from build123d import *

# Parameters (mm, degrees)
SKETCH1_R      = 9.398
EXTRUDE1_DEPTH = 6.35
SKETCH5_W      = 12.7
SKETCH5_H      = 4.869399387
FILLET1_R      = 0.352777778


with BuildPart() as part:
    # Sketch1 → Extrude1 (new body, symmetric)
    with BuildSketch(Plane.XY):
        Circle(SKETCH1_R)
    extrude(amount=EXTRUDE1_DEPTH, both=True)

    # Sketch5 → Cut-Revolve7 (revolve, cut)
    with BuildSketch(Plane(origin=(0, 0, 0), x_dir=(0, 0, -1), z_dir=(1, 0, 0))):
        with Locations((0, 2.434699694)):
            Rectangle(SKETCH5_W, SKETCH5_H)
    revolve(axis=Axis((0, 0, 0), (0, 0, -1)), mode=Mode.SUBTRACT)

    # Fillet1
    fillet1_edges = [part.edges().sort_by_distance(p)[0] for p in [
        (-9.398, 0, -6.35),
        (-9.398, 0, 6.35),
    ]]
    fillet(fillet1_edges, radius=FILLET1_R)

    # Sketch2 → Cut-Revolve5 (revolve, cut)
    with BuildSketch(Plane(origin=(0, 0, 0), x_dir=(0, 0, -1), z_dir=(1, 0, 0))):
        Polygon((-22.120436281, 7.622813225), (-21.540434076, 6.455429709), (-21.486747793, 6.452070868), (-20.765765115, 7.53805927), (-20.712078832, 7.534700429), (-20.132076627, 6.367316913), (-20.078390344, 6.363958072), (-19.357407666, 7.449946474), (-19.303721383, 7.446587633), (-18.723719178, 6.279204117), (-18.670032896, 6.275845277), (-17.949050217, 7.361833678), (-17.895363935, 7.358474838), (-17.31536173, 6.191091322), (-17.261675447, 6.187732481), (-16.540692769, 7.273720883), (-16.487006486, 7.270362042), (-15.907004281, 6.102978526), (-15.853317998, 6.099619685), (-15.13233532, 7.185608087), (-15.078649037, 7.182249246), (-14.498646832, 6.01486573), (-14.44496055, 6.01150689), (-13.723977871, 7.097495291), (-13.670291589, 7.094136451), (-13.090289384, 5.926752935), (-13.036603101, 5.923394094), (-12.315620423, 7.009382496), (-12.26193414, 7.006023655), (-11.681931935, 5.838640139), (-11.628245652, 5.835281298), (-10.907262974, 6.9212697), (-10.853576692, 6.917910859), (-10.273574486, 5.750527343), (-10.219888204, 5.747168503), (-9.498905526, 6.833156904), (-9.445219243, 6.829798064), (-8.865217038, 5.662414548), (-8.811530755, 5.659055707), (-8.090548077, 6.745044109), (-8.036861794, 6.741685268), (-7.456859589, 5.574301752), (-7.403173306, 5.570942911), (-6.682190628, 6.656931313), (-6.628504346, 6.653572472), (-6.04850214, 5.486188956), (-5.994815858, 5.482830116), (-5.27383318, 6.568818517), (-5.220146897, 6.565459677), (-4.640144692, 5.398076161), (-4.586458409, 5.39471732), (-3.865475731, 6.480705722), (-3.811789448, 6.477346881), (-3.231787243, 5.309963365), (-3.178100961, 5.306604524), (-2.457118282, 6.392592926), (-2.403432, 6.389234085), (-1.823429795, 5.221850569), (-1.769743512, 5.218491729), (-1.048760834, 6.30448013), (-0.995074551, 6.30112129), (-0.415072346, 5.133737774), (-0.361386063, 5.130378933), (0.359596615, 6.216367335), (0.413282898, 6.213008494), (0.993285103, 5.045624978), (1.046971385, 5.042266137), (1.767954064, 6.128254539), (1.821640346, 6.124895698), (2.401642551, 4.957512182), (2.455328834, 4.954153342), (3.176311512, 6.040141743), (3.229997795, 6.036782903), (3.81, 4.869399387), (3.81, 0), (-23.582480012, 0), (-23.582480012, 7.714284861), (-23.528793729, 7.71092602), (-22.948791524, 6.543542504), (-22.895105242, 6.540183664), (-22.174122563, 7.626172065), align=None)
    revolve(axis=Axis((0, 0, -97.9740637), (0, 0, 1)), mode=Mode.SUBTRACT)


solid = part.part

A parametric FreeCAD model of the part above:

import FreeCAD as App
import Part
import Sketcher
Q = App.Units.Quantity


def edges_at(feature, points):
    """Names of the edges that pass closest to the given points."""
    edges = feature.Shape.Edges
    near = lambda p: min(range(len(edges)), key=lambda i: edges[i].distToShape(Part.Vertex(*p))[0])
    return sorted({f"Edge{near(p) + 1}" for p in points})

doc = App.newDocument("Part")
params = doc.addObject("Spreadsheet::Sheet", "Params")
for row, (alias, value) in enumerate([
    ("sketch1_diameter", "0.74 in"),
    ("pad1_length", "0.5 in"),
    ("sketch2_height", "0.5 in"),
    ("groove_angle", "360 deg"),
    ("fillet_radius", "0.352778 mm"),
    ("groove2_angle", "360 deg"),
], start=1):
    params.set(f"A{row}", alias)
    params.set(f"B{row}", "=" + value)
    params.setAlias(f"B{row}", alias)

body = doc.addObject("PartDesign::Body", "Body")

# Sketch on XY plane
sketch1 = body.newObject("Sketcher::SketchObject", "Sketch")
sketch1.AttachmentSupport = (doc.getObject("XY_Plane"), [""])
sketch1.MapMode = "FlatFace"
sketch1.addGeometry(Part.Circle(App.Vector(0, 0, 0), App.Vector(0, 0, 1), 9), False)
sketch1.addConstraint(Sketcher.Constraint("Coincident", 0, 3, -1, 1))
sketch1.addConstraint(Sketcher.Constraint("Diameter", 0, Q("0.74 in")))
sketch1.setExpression("Constraints[1]", "Params.sketch1_diameter")
pad1 = body.newObject("PartDesign::Pad", "Pad")
pad1.Profile = sketch1
pad1.setExpression("Length", "Params.pad1_length")
pad1.Midplane = True

# Sketch on YZ plane
sketch2 = body.newObject("Sketcher::SketchObject", "Sketch001")
sketch2.AttachmentSupport = (doc.getObject("YZ_Plane"), [""])
sketch2.MapMode = "FlatFace"
sketch2.addGeometry(Part.LineSegment(App.Vector(4.9, 6.3, 0), App.Vector(0, 6.3, 0)), False)
sketch2.addGeometry(Part.LineSegment(App.Vector(0, 6.3, 0), App.Vector(0, -6.3, 0)), False)
sketch2.addGeometry(Part.LineSegment(App.Vector(0, -6.3, 0), App.Vector(4.9, -6.3, 0)), False)
sketch2.addGeometry(Part.LineSegment(App.Vector(4.9, -6.3, 0), App.Vector(4.9, 6.3, 0)), False)
sketch2.addConstraint(Sketcher.Constraint("Coincident", 0, 2, 1, 1))
sketch2.addConstraint(Sketcher.Constraint("Coincident", 1, 2, 2, 1))
sketch2.addConstraint(Sketcher.Constraint("Coincident", 2, 2, 3, 1))
sketch2.addConstraint(Sketcher.Constraint("Coincident", 3, 2, 0, 1))
sketch2.addConstraint(Sketcher.Constraint("Horizontal", 0))
sketch2.addConstraint(Sketcher.Constraint("Vertical", 1))
sketch2.addConstraint(Sketcher.Constraint("Horizontal", 2))
sketch2.addConstraint(Sketcher.Constraint("Vertical", 3))
sketch2.addConstraint(Sketcher.Constraint("Symmetric", 0, 2, 1, 2, -1, 1))
sketch2.addConstraint(Sketcher.Constraint("DistanceY", 1, 2, 1, 1, Q("0.5 in")))
sketch2.addConstraint(Sketcher.Constraint("DistanceX", 0, 2, 0, 1, Q("4.869399 mm")))
sketch2.setExpression("Constraints[9]", "Params.sketch2_height")
groove = body.newObject("PartDesign::Groove", "Groove")
groove.Profile = sketch2
groove.ReferenceAxis = (sketch2, ["V_Axis"])
groove.setExpression("Angle", "Params.groove_angle")
doc.recompute()

fillet = body.newObject("PartDesign::Fillet", "Fillet")
fillet.Base = (groove, edges_at(groove, [(-9.398, 0, -6.35), (-9.398, 0, 6.35)]))
fillet.setExpression("Radius", "Params.fillet_radius")

# Sketch on YZ plane
sketch3 = body.newObject("Sketcher::SketchObject", "Sketch002")
sketch3.AttachmentSupport = (doc.getObject("YZ_Plane"), [""])
sketch3.MapMode = "FlatFace"
sketch3.addGeometry(Part.LineSegment(App.Vector(6.46, 21.54, 0), App.Vector(7.62, 22.12, 0)), False)
sketch3.addGeometry(Part.LineSegment(App.Vector(7.62, 22.12, 0), App.Vector(7.63, 22.17, 0)), False)
sketch3.addGeometry(Part.LineSegment(App.Vector(7.63, 22.17, 0), App.Vector(6.54, 22.9, 0)), False)
sketch3.addGeometry(Part.LineSegment(App.Vector(6.54, 22.9, 0), App.Vector(6.54, 22.95, 0)), False)
sketch3.addGeometry(Part.LineSegment(App.Vector(6.54, 22.95, 0), App.Vector(7.71, 23.53, 0)), False)
sketch3.addGeometry(Part.LineSegment(App.Vector(7.71, 23.53, 0), App.Vector(7.71, 23.58, 0)), False)
sketch3.addGeometry(Part.LineSegment(App.Vector(7.71, 23.58, 0), App.Vector(0, 23.58, 0)), False)
sketch3.addGeometry(Part.LineSegment(App.Vector(0, 23.58, 0), App.Vector(0, -3.81, 0)), False)
sketch3.addGeometry(Part.LineSegment(App.Vector(0, -3.81, 0), App.Vector(4.87, -3.81, 0)), False)
sketch3.addGeometry(Part.LineSegment(App.Vector(4.87, -3.81, 0), App.Vector(6.04, -3.23, 0)), False)
sketch3.addGeometry(Part.LineSegment(App.Vector(6.04, -3.23, 0), App.Vector(6.04, -3.18, 0)), False)
sketch3.addGeometry(Part.LineSegment(App.Vector(6.04, -3.18, 0), App.Vector(4.95, -2.46, 0)), False)
sketch3.addGeometry(Part.LineSegment(App.Vector(4.95, -2.46, 0), App.Vector(4.96, -2.4, 0)), False)
sketch3.addGeometry(Part.LineSegment(App.Vector(4.96, -2.4, 0), App.Vector(6.12, -1.82, 0)), False)
sketch3.addGeometry(Part.LineSegment(App.Vector(6.12, -1.82, 0), App.Vector(6.13, -1.77, 0)), False)
sketch3.addGeometry(Part.LineSegment(App.Vector(6.13, -1.77, 0), App.Vector(5.04, -1.05, 0)), False)
sketch3.addGeometry(Part.LineSegment(App.Vector(5.04, -1.05, 0), App.Vector(5.05, -0.99, 0)), False)
sketch3.addGeometry(Part.LineSegment(App.Vector(5.05, -0.99, 0), App.Vector(6.21, -0.41, 0)), False)
sketch3.addGeometry(Part.LineSegment(App.Vector(6.21, -0.41, 0), App.Vector(6.22, -0.36, 0)), False)
sketch3.addGeometry(Part.LineSegment(App.Vector(6.22, -0.36, 0), App.Vector(5.13, 0.36, 0)), False)
sketch3.addGeometry(Part.LineSegment(App.Vector(5.13, 0.36, 0), App.Vector(5.13, 0.42, 0)), False)
sketch3.addGeometry(Part.LineSegment(App.Vector(5.13, 0.42, 0), App.Vector(6.3, 1, 0)), False)
sketch3.addGeometry(Part.LineSegment(App.Vector(6.3, 1, 0), App.Vector(6.3, 1.05, 0)), False)
sketch3.addGeometry(Part.LineSegment(App.Vector(6.3, 1.05, 0), App.Vector(5.22, 1.77, 0)), False)
sketch3.addGeometry(Part.LineSegment(App.Vector(5.22, 1.77, 0), App.Vector(5.22, 1.82, 0)), False)
sketch3.addGeometry(Part.LineSegment(App.Vector(5.22, 1.82, 0), App.Vector(6.39, 2.4, 0)), False)
sketch3.addGeometry(Part.LineSegment(App.Vector(6.39, 2.4, 0), App.Vector(6.39, 2.46, 0)), False)
sketch3.addGeometry(Part.LineSegment(App.Vector(6.39, 2.46, 0), App.Vector(5.31, 3.18, 0)), False)
sketch3.addGeometry(Part.LineSegment(App.Vector(5.31, 3.18, 0), App.Vector(5.31, 3.23, 0)), False)
sketch3.addGeometry(Part.LineSegment(App.Vector(5.31, 3.23, 0), App.Vector(6.48, 3.81, 0)), False)
sketch3.addGeometry(Part.LineSegment(App.Vector(6.48, 3.81, 0), App.Vector(6.48, 3.87, 0)), False)
sketch3.addGeometry(Part.LineSegment(App.Vector(6.48, 3.87, 0), App.Vector(5.39, 4.59, 0)), False)
sketch3.addGeometry(Part.LineSegment(App.Vector(5.39, 4.59, 0), App.Vector(5.4, 4.64, 0)), False)
sketch3.addGeometry(Part.LineSegment(App.Vector(5.4, 4.64, 0), App.Vector(6.57, 5.22, 0)), False)
sketch3.addGeometry(Part.LineSegment(App.Vector(6.57, 5.22, 0), App.Vector(6.57, 5.27, 0)), False)
sketch3.addGeometry(Part.LineSegment(App.Vector(6.57, 5.27, 0), App.Vector(5.48, 5.99, 0)), False)
sketch3.addGeometry(Part.LineSegment(App.Vector(5.48, 5.99, 0), App.Vector(5.49, 6.05, 0)), False)
sketch3.addGeometry(Part.LineSegment(App.Vector(5.49, 6.05, 0), App.Vector(6.65, 6.63, 0)), False)
sketch3.addGeometry(Part.LineSegment(App.Vector(6.65, 6.63, 0), App.Vector(6.66, 6.68, 0)), False)
sketch3.addGeometry(Part.LineSegment(App.Vector(6.66, 6.68, 0), App.Vector(5.57, 7.4, 0)), False)
sketch3.addGeometry(Part.LineSegment(App.Vector(5.57, 7.4, 0), App.Vector(5.57, 7.46, 0)), False)
sketch3.addGeometry(Part.LineSegment(App.Vector(5.57, 7.46, 0), App.Vector(6.74, 8.04, 0)), False)
sketch3.addGeometry(Part.LineSegment(App.Vector(6.74, 8.04, 0), App.Vector(6.75, 8.09, 0)), False)
sketch3.addGeometry(Part.LineSegment(App.Vector(6.75, 8.09, 0), App.Vector(5.66, 8.81, 0)), False)
sketch3.addGeometry(Part.LineSegment(App.Vector(5.66, 8.81, 0), App.Vector(5.66, 8.87, 0)), False)
sketch3.addGeometry(Part.LineSegment(App.Vector(5.66, 8.87, 0), App.Vector(6.83, 9.45, 0)), False)
sketch3.addGeometry(Part.LineSegment(App.Vector(6.83, 9.45, 0), App.Vector(6.83, 9.5, 0)), False)
sketch3.addGeometry(Part.LineSegment(App.Vector(6.83, 9.5, 0), App.Vector(5.75, 10.22, 0)), False)
sketch3.addGeometry(Part.LineSegment(App.Vector(5.75, 10.22, 0), App.Vector(5.75, 10.27, 0)), False)
sketch3.addGeometry(Part.LineSegment(App.Vector(5.75, 10.27, 0), App.Vector(6.92, 10.85, 0)), False)
sketch3.addGeometry(Part.LineSegment(App.Vector(6.92, 10.85, 0), App.Vector(6.92, 10.91, 0)), False)
sketch3.addGeometry(Part.LineSegment(App.Vector(6.92, 10.91, 0), App.Vector(5.84, 11.63, 0)), False)
sketch3.addGeometry(Part.LineSegment(App.Vector(5.84, 11.63, 0), App.Vector(5.84, 11.68, 0)), False)
sketch3.addGeometry(Part.LineSegment(App.Vector(5.84, 11.68, 0), App.Vector(7.01, 12.26, 0)), False)
sketch3.addGeometry(Part.LineSegment(App.Vector(7.01, 12.26, 0), App.Vector(7.01, 12.32, 0)), False)
sketch3.addGeometry(Part.LineSegment(App.Vector(7.01, 12.32, 0), App.Vector(5.92, 13.04, 0)), False)
sketch3.addGeometry(Part.LineSegment(App.Vector(5.92, 13.04, 0), App.Vector(5.93, 13.09, 0)), False)
sketch3.addGeometry(Part.LineSegment(App.Vector(5.93, 13.09, 0), App.Vector(7.09, 13.67, 0)), False)
sketch3.addGeometry(Part.LineSegment(App.Vector(7.09, 13.67, 0), App.Vector(7.1, 13.72, 0)), False)
sketch3.addGeometry(Part.LineSegment(App.Vector(7.1, 13.72, 0), App.Vector(6.01, 14.44, 0)), False)
sketch3.addGeometry(Part.LineSegment(App.Vector(6.01, 14.44, 0), App.Vector(6.01, 14.5, 0)), False)
sketch3.addGeometry(Part.LineSegment(App.Vector(6.01, 14.5, 0), App.Vector(7.18, 15.08, 0)), False)
sketch3.addGeometry(Part.LineSegment(App.Vector(7.18, 15.08, 0), App.Vector(7.19, 15.13, 0)), False)
sketch3.addGeometry(Part.LineSegment(App.Vector(7.19, 15.13, 0), App.Vector(6.1, 15.85, 0)), False)
sketch3.addGeometry(Part.LineSegment(App.Vector(6.1, 15.85, 0), App.Vector(6.1, 15.91, 0)), False)
sketch3.addGeometry(Part.LineSegment(App.Vector(6.1, 15.91, 0), App.Vector(7.27, 16.49, 0)), False)
sketch3.addGeometry(Part.LineSegment(App.Vector(7.27, 16.49, 0), App.Vector(7.27, 16.54, 0)), False)
sketch3.addGeometry(Part.LineSegment(App.Vector(7.27, 16.54, 0), App.Vector(6.19, 17.26, 0)), False)
sketch3.addGeometry(Part.LineSegment(App.Vector(6.19, 17.26, 0), App.Vector(6.19, 17.32, 0)), False)
sketch3.addGeometry(Part.LineSegment(App.Vector(6.19, 17.32, 0), App.Vector(7.36, 17.9, 0)), False)
sketch3.addGeometry(Part.LineSegment(App.Vector(7.36, 17.9, 0), App.Vector(7.36, 17.95, 0)), False)
sketch3.addGeometry(Part.LineSegment(App.Vector(7.36, 17.95, 0), App.Vector(6.28, 18.67, 0)), False)
sketch3.addGeometry(Part.LineSegment(App.Vector(6.28, 18.67, 0), App.Vector(6.28, 18.72, 0)), False)
sketch3.addGeometry(Part.LineSegment(App.Vector(6.28, 18.72, 0), App.Vector(7.45, 19.3, 0)), False)
sketch3.addGeometry(Part.LineSegment(App.Vector(7.45, 19.3, 0), App.Vector(7.45, 19.36, 0)), False)
sketch3.addGeometry(Part.LineSegment(App.Vector(7.45, 19.36, 0), App.Vector(6.36, 20.08, 0)), False)
sketch3.addGeometry(Part.LineSegment(App.Vector(6.36, 20.08, 0), App.Vector(6.37, 20.13, 0)), False)
sketch3.addGeometry(Part.LineSegment(App.Vector(6.37, 20.13, 0), App.Vector(7.53, 20.71, 0)), False)
sketch3.addGeometry(Part.LineSegment(App.Vector(7.53, 20.71, 0), App.Vector(7.54, 20.77, 0)), False)
sketch3.addGeometry(Part.LineSegment(App.Vector(7.54, 20.77, 0), App.Vector(6.45, 21.49, 0)), False)
sketch3.addGeometry(Part.LineSegment(App.Vector(6.45, 21.49, 0), App.Vector(6.46, 21.54, 0)), False)
sketch3.addConstraint(Sketcher.Constraint("Coincident", 0, 2, 1, 1))
sketch3.addConstraint(Sketcher.Constraint("Coincident", 1, 2, 2, 1))
sketch3.addConstraint(Sketcher.Constraint("Coincident", 2, 2, 3, 1))
sketch3.addConstraint(Sketcher.Constraint("Coincident", 3, 2, 4, 1))
sketch3.addConstraint(Sketcher.Constraint("Coincident", 4, 2, 5, 1))
sketch3.addConstraint(Sketcher.Constraint("Coincident", 5, 2, 6, 1))
sketch3.addConstraint(Sketcher.Constraint("Coincident", 6, 2, 7, 1))
sketch3.addConstraint(Sketcher.Constraint("Coincident", 7, 2, 8, 1))
sketch3.addConstraint(Sketcher.Constraint("Coincident", 8, 2, 9, 1))
sketch3.addConstraint(Sketcher.Constraint("Coincident", 9, 2, 10, 1))
sketch3.addConstraint(Sketcher.Constraint("Coincident", 10, 2, 11, 1))
sketch3.addConstraint(Sketcher.Constraint("Coincident", 11, 2, 12, 1))
sketch3.addConstraint(Sketcher.Constraint("Coincident", 12, 2, 13, 1))
sketch3.addConstraint(Sketcher.Constraint("Coincident", 13, 2, 14, 1))
sketch3.addConstraint(Sketcher.Constraint("Coincident", 14, 2, 15, 1))
sketch3.addConstraint(Sketcher.Constraint("Coincident", 15, 2, 16, 1))
sketch3.addConstraint(Sketcher.Constraint("Coincident", 16, 2, 17, 1))
sketch3.addConstraint(Sketcher.Constraint("Coincident", 17, 2, 18, 1))
sketch3.addConstraint(Sketcher.Constraint("Coincident", 18, 2, 19, 1))
sketch3.addConstraint(Sketcher.Constraint("Coincident", 19, 2, 20, 1))
sketch3.addConstraint(Sketcher.Constraint("Coincident", 20, 2, 21, 1))
sketch3.addConstraint(Sketcher.Constraint("Coincident", 21, 2, 22, 1))
sketch3.addConstraint(Sketcher.Constraint("Coincident", 22, 2, 23, 1))
sketch3.addConstraint(Sketcher.Constraint("Coincident", 23, 2, 24, 1))
sketch3.addConstraint(Sketcher.Constraint("Coincident", 24, 2, 25, 1))
sketch3.addConstraint(Sketcher.Constraint("Coincident", 25, 2, 26, 1))
sketch3.addConstraint(Sketcher.Constraint("Coincident", 26, 2, 27, 1))
sketch3.addConstraint(Sketcher.Constraint("Coincident", 27, 2, 28, 1))
sketch3.addConstraint(Sketcher.Constraint("Coincident", 28, 2, 29, 1))
sketch3.addConstraint(Sketcher.Constraint("Coincident", 29, 2, 30, 1))
sketch3.addConstraint(Sketcher.Constraint("Coincident", 30, 2, 31, 1))
sketch3.addConstraint(Sketcher.Constraint("Coincident", 31, 2, 32, 1))
sketch3.addConstraint(Sketcher.Constraint("Coincident", 32, 2, 33, 1))
sketch3.addConstraint(Sketcher.Constraint("Coincident", 33, 2, 34, 1))
sketch3.addConstraint(Sketcher.Constraint("Coincident", 34, 2, 35, 1))
sketch3.addConstraint(Sketcher.Constraint("Coincident", 35, 2, 36, 1))
sketch3.addConstraint(Sketcher.Constraint("Coincident", 36, 2, 37, 1))
sketch3.addConstraint(Sketcher.Constraint("Coincident", 37, 2, 38, 1))
sketch3.addConstraint(Sketcher.Constraint("Coincident", 38, 2, 39, 1))
sketch3.addConstraint(Sketcher.Constraint("Coincident", 39, 2, 40, 1))
sketch3.addConstraint(Sketcher.Constraint("Coincident", 40, 2, 41, 1))
sketch3.addConstraint(Sketcher.Constraint("Coincident", 41, 2, 42, 1))
sketch3.addConstraint(Sketcher.Constraint("Coincident", 42, 2, 43, 1))
sketch3.addConstraint(Sketcher.Constraint("Coincident", 43, 2, 44, 1))
sketch3.addConstraint(Sketcher.Constraint("Coincident", 44, 2, 45, 1))
sketch3.addConstraint(Sketcher.Constraint("Coincident", 45, 2, 46, 1))
sketch3.addConstraint(Sketcher.Constraint("Coincident", 46, 2, 47, 1))
sketch3.addConstraint(Sketcher.Constraint("Coincident", 47, 2, 48, 1))
sketch3.addConstraint(Sketcher.Constraint("Coincident", 48, 2, 49, 1))
sketch3.addConstraint(Sketcher.Constraint("Coincident", 49, 2, 50, 1))
sketch3.addConstraint(Sketcher.Constraint("Coincident", 50, 2, 51, 1))
sketch3.addConstraint(Sketcher.Constraint("Coincident", 51, 2, 52, 1))
sketch3.addConstraint(Sketcher.Constraint("Coincident", 52, 2, 53, 1))
sketch3.addConstraint(Sketcher.Constraint("Coincident", 53, 2, 54, 1))
sketch3.addConstraint(Sketcher.Constraint("Coincident", 54, 2, 55, 1))
sketch3.addConstraint(Sketcher.Constraint("Coincident", 55, 2, 56, 1))
sketch3.addConstraint(Sketcher.Constraint("Coincident", 56, 2, 57, 1))
sketch3.addConstraint(Sketcher.Constraint("Coincident", 57, 2, 58, 1))
sketch3.addConstraint(Sketcher.Constraint("Coincident", 58, 2, 59, 1))
sketch3.addConstraint(Sketcher.Constraint("Coincident", 59, 2, 60, 1))
sketch3.addConstraint(Sketcher.Constraint("Coincident", 60, 2, 61, 1))
sketch3.addConstraint(Sketcher.Constraint("Coincident", 61, 2, 62, 1))
sketch3.addConstraint(Sketcher.Constraint("Coincident", 62, 2, 63, 1))
sketch3.addConstraint(Sketcher.Constraint("Coincident", 63, 2, 64, 1))
sketch3.addConstraint(Sketcher.Constraint("Coincident", 64, 2, 65, 1))
sketch3.addConstraint(Sketcher.Constraint("Coincident", 65, 2, 66, 1))
sketch3.addConstraint(Sketcher.Constraint("Coincident", 66, 2, 67, 1))
sketch3.addConstraint(Sketcher.Constraint("Coincident", 67, 2, 68, 1))
sketch3.addConstraint(Sketcher.Constraint("Coincident", 68, 2, 69, 1))
sketch3.addConstraint(Sketcher.Constraint("Coincident", 69, 2, 70, 1))
sketch3.addConstraint(Sketcher.Constraint("Coincident", 70, 2, 71, 1))
sketch3.addConstraint(Sketcher.Constraint("Coincident", 71, 2, 72, 1))
sketch3.addConstraint(Sketcher.Constraint("Coincident", 72, 2, 73, 1))
sketch3.addConstraint(Sketcher.Constraint("Coincident", 73, 2, 74, 1))
sketch3.addConstraint(Sketcher.Constraint("Coincident", 74, 2, 75, 1))
sketch3.addConstraint(Sketcher.Constraint("Coincident", 75, 2, 76, 1))
sketch3.addConstraint(Sketcher.Constraint("Coincident", 76, 2, 77, 1))
sketch3.addConstraint(Sketcher.Constraint("Coincident", 77, 2, 78, 1))
sketch3.addConstraint(Sketcher.Constraint("Coincident", 78, 2, 79, 1))
sketch3.addConstraint(Sketcher.Constraint("Coincident", 79, 2, 80, 1))
sketch3.addConstraint(Sketcher.Constraint("Coincident", 80, 2, 0, 1))
sketch3.addConstraint(Sketcher.Constraint("Horizontal", 6))
sketch3.addConstraint(Sketcher.Constraint("Vertical", 7))
sketch3.addConstraint(Sketcher.Constraint("Horizontal", 8))
sketch3.addConstraint(Sketcher.Constraint("PointOnObject", 6, 2, -2))
sketch3.addConstraint(Sketcher.Constraint("Parallel", 1, 3))
sketch3.addConstraint(Sketcher.Constraint("Parallel", 0, 4))
sketch3.addConstraint(Sketcher.Constraint("Parallel", 3, 5))
sketch3.addConstraint(Sketcher.Constraint("Parallel", 4, 9))
sketch3.addConstraint(Sketcher.Constraint("Parallel", 5, 10))
sketch3.addConstraint(Sketcher.Constraint("Parallel", 2, 11))
sketch3.addConstraint(Sketcher.Constraint("Parallel", 10, 12))
sketch3.addConstraint(Sketcher.Constraint("Parallel", 9, 13))
sketch3.addConstraint(Sketcher.Constraint("Parallel", 12, 14))
sketch3.addConstraint(Sketcher.Constraint("Parallel", 11, 15))
sketch3.addConstraint(Sketcher.Constraint("Parallel", 14, 16))
sketch3.addConstraint(Sketcher.Constraint("Parallel", 13, 17))
sketch3.addConstraint(Sketcher.Constraint("Parallel", 16, 18))
sketch3.addConstraint(Sketcher.Constraint("Parallel", 15, 19))
sketch3.addConstraint(Sketcher.Constraint("Parallel", 18, 20))
sketch3.addConstraint(Sketcher.Constraint("Parallel", 17, 21))
sketch3.addConstraint(Sketcher.Constraint("Parallel", 20, 22))
sketch3.addConstraint(Sketcher.Constraint("Parallel", 19, 23))
sketch3.addConstraint(Sketcher.Constraint("Parallel", 22, 24))
sketch3.addConstraint(Sketcher.Constraint("Parallel", 21, 25))
sketch3.addConstraint(Sketcher.Constraint("Parallel", 24, 26))
sketch3.addConstraint(Sketcher.Constraint("Parallel", 23, 27))
sketch3.addConstraint(Sketcher.Constraint("Parallel", 26, 28))
sketch3.addConstraint(Sketcher.Constraint("Parallel", 25, 29))
sketch3.addConstraint(Sketcher.Constraint("Parallel", 28, 30))
sketch3.addConstraint(Sketcher.Constraint("Parallel", 27, 31))
sketch3.addConstraint(Sketcher.Constraint("Parallel", 30, 32))
sketch3.addConstraint(Sketcher.Constraint("Parallel", 29, 33))
sketch3.addConstraint(Sketcher.Constraint("Parallel", 32, 34))
sketch3.addConstraint(Sketcher.Constraint("Parallel", 31, 35))
sketch3.addConstraint(Sketcher.Constraint("Parallel", 34, 36))
sketch3.addConstraint(Sketcher.Constraint("Parallel", 33, 37))
sketch3.addConstraint(Sketcher.Constraint("Parallel", 36, 38))
sketch3.addConstraint(Sketcher.Constraint("Parallel", 35, 39))
sketch3.addConstraint(Sketcher.Constraint("Parallel", 38, 40))
sketch3.addConstraint(Sketcher.Constraint("Parallel", 37, 41))
sketch3.addConstraint(Sketcher.Constraint("Parallel", 40, 42))
sketch3.addConstraint(Sketcher.Constraint("Parallel", 39, 43))
sketch3.addConstraint(Sketcher.Constraint("Parallel", 42, 44))
sketch3.addConstraint(Sketcher.Constraint("Parallel", 41, 45))
sketch3.addConstraint(Sketcher.Constraint("Parallel", 44, 46))
sketch3.addConstraint(Sketcher.Constraint("Parallel", 43, 47))
sketch3.addConstraint(Sketcher.Constraint("Parallel", 46, 48))
sketch3.addConstraint(Sketcher.Constraint("Parallel", 45, 49))
sketch3.addConstraint(Sketcher.Constraint("Parallel", 48, 50))
sketch3.addConstraint(Sketcher.Constraint("Parallel", 47, 51))
sketch3.addConstraint(Sketcher.Constraint("Parallel", 50, 52))
sketch3.addConstraint(Sketcher.Constraint("Parallel", 49, 53))
sketch3.addConstraint(Sketcher.Constraint("Parallel", 52, 54))
sketch3.addConstraint(Sketcher.Constraint("Parallel", 51, 55))
sketch3.addConstraint(Sketcher.Constraint("Parallel", 54, 56))
sketch3.addConstraint(Sketcher.Constraint("Parallel", 53, 57))
sketch3.addConstraint(Sketcher.Constraint("Parallel", 56, 58))
sketch3.addConstraint(Sketcher.Constraint("Parallel", 55, 59))
sketch3.addConstraint(Sketcher.Constraint("Parallel", 58, 60))
sketch3.addConstraint(Sketcher.Constraint("Parallel", 57, 61))
sketch3.addConstraint(Sketcher.Constraint("Parallel", 60, 62))
sketch3.addConstraint(Sketcher.Constraint("Parallel", 59, 63))
sketch3.addConstraint(Sketcher.Constraint("Parallel", 62, 64))
sketch3.addConstraint(Sketcher.Constraint("Parallel", 61, 65))
sketch3.addConstraint(Sketcher.Constraint("Parallel", 64, 66))
sketch3.addConstraint(Sketcher.Constraint("Parallel", 63, 67))
sketch3.addConstraint(Sketcher.Constraint("Parallel", 66, 68))
sketch3.addConstraint(Sketcher.Constraint("Parallel", 65, 69))
sketch3.addConstraint(Sketcher.Constraint("Parallel", 68, 70))
sketch3.addConstraint(Sketcher.Constraint("Parallel", 67, 71))
sketch3.addConstraint(Sketcher.Constraint("Parallel", 70, 72))
sketch3.addConstraint(Sketcher.Constraint("Parallel", 69, 73))
sketch3.addConstraint(Sketcher.Constraint("Parallel", 72, 74))
sketch3.addConstraint(Sketcher.Constraint("Parallel", 71, 75))
sketch3.addConstraint(Sketcher.Constraint("Parallel", 74, 76))
sketch3.addConstraint(Sketcher.Constraint("Parallel", 73, 77))
sketch3.addConstraint(Sketcher.Constraint("Parallel", 76, 78))
sketch3.addConstraint(Sketcher.Constraint("Parallel", 75, 79))
sketch3.addConstraint(Sketcher.Constraint("Parallel", 78, 80))
sketch3.addConstraint(Sketcher.Constraint("Equal", 0, 2))
sketch3.addConstraint(Sketcher.Constraint("Equal", 1, 3))
sketch3.addConstraint(Sketcher.Constraint("Equal", 2, 4))
sketch3.addConstraint(Sketcher.Constraint("Equal", 3, 5))
sketch3.addConstraint(Sketcher.Constraint("Equal", 4, 9))
sketch3.addConstraint(Sketcher.Constraint("Equal", 5, 10))
sketch3.addConstraint(Sketcher.Constraint("Equal", 9, 11))
sketch3.addConstraint(Sketcher.Constraint("Equal", 10, 12))
sketch3.addConstraint(Sketcher.Constraint("Equal", 11, 13))
sketch3.addConstraint(Sketcher.Constraint("Equal", 12, 14))
sketch3.addConstraint(Sketcher.Constraint("Equal", 13, 15))
sketch3.addConstraint(Sketcher.Constraint("Equal", 14, 16))
sketch3.addConstraint(Sketcher.Constraint("Equal", 15, 17))
sketch3.addConstraint(Sketcher.Constraint("Equal", 16, 18))
sketch3.addConstraint(Sketcher.Constraint("Equal", 17, 19))
sketch3.addConstraint(Sketcher.Constraint("Equal", 18, 20))
sketch3.addConstraint(Sketcher.Constraint("Equal", 19, 21))
sketch3.addConstraint(Sketcher.Constraint("Equal", 20, 22))
sketch3.addConstraint(Sketcher.Constraint("Equal", 21, 23))
sketch3.addConstraint(Sketcher.Constraint("Equal", 22, 24))
sketch3.addConstraint(Sketcher.Constraint("Equal", 23, 25))
sketch3.addConstraint(Sketcher.Constraint("Equal", 24, 26))
sketch3.addConstraint(Sketcher.Constraint("Equal", 25, 27))
sketch3.addConstraint(Sketcher.Constraint("Equal", 26, 28))
sketch3.addConstraint(Sketcher.Constraint("Equal", 27, 29))
sketch3.addConstraint(Sketcher.Constraint("Equal", 28, 30))
sketch3.addConstraint(Sketcher.Constraint("Equal", 29, 31))
sketch3.addConstraint(Sketcher.Constraint("Equal", 30, 32))
sketch3.addConstraint(Sketcher.Constraint("Equal", 31, 33))
sketch3.addConstraint(Sketcher.Constraint("Equal", 32, 34))
sketch3.addConstraint(Sketcher.Constraint("Equal", 33, 35))
sketch3.addConstraint(Sketcher.Constraint("Equal", 34, 36))
sketch3.addConstraint(Sketcher.Constraint("Equal", 35, 37))
sketch3.addConstraint(Sketcher.Constraint("Equal", 36, 38))
sketch3.addConstraint(Sketcher.Constraint("Equal", 37, 39))
sketch3.addConstraint(Sketcher.Constraint("Equal", 38, 40))
sketch3.addConstraint(Sketcher.Constraint("Equal", 39, 41))
sketch3.addConstraint(Sketcher.Constraint("Equal", 40, 42))
sketch3.addConstraint(Sketcher.Constraint("Equal", 41, 43))
sketch3.addConstraint(Sketcher.Constraint("Equal", 42, 44))
sketch3.addConstraint(Sketcher.Constraint("Equal", 43, 45))
sketch3.addConstraint(Sketcher.Constraint("Equal", 44, 46))
sketch3.addConstraint(Sketcher.Constraint("Equal", 45, 47))
sketch3.addConstraint(Sketcher.Constraint("Equal", 46, 48))
sketch3.addConstraint(Sketcher.Constraint("Equal", 47, 49))
sketch3.addConstraint(Sketcher.Constraint("Equal", 48, 50))
sketch3.addConstraint(Sketcher.Constraint("Equal", 49, 51))
sketch3.addConstraint(Sketcher.Constraint("Equal", 50, 52))
sketch3.addConstraint(Sketcher.Constraint("Equal", 51, 53))
sketch3.addConstraint(Sketcher.Constraint("Equal", 52, 54))
sketch3.addConstraint(Sketcher.Constraint("Equal", 53, 55))
sketch3.addConstraint(Sketcher.Constraint("Equal", 54, 56))
sketch3.addConstraint(Sketcher.Constraint("Equal", 55, 57))
sketch3.addConstraint(Sketcher.Constraint("Equal", 56, 58))
sketch3.addConstraint(Sketcher.Constraint("Equal", 57, 59))
sketch3.addConstraint(Sketcher.Constraint("Equal", 58, 60))
sketch3.addConstraint(Sketcher.Constraint("Equal", 59, 61))
sketch3.addConstraint(Sketcher.Constraint("Equal", 60, 62))
sketch3.addConstraint(Sketcher.Constraint("Equal", 61, 63))
sketch3.addConstraint(Sketcher.Constraint("Equal", 62, 64))
sketch3.addConstraint(Sketcher.Constraint("Equal", 63, 65))
sketch3.addConstraint(Sketcher.Constraint("Equal", 64, 66))
sketch3.addConstraint(Sketcher.Constraint("Equal", 65, 67))
sketch3.addConstraint(Sketcher.Constraint("Equal", 66, 68))
sketch3.addConstraint(Sketcher.Constraint("Equal", 67, 69))
sketch3.addConstraint(Sketcher.Constraint("Equal", 68, 70))
sketch3.addConstraint(Sketcher.Constraint("Equal", 69, 71))
sketch3.addConstraint(Sketcher.Constraint("Equal", 70, 72))
sketch3.addConstraint(Sketcher.Constraint("Equal", 71, 73))
sketch3.addConstraint(Sketcher.Constraint("Equal", 72, 74))
sketch3.addConstraint(Sketcher.Constraint("Equal", 73, 75))
sketch3.addConstraint(Sketcher.Constraint("Equal", 74, 76))
sketch3.addConstraint(Sketcher.Constraint("Equal", 75, 77))
sketch3.addConstraint(Sketcher.Constraint("Equal", 76, 78))
sketch3.addConstraint(Sketcher.Constraint("Equal", 77, 79))
sketch3.addConstraint(Sketcher.Constraint("Equal", 78, 80))
sketch3.addConstraint(Sketcher.Constraint("DistanceY", 7, 2, -1, 1, Q("0.15 in")))
sketch3.addConstraint(Sketcher.Constraint("Angle", 0, Q("26.42 deg")))
sketch3.addConstraint(Sketcher.Constraint("Angle", 1, Q("86.420001 deg")))
sketch3.addConstraint(Sketcher.Constraint("Angle", 2, Q("146.42 deg")))
sketch3.addConstraint(Sketcher.Constraint("DistanceX", 8, 1, 8, 2, Q("4.869399 mm")))
sketch3.addConstraint(Sketcher.Constraint("DistanceY", 7, 2, 7, 1, Q("27.39248 mm")))
sketch3.addConstraint(Sketcher.Constraint("DistanceY", -1, 1, 27, 2, Q("3.178101 mm")))
groove2 = body.newObject("PartDesign::Groove", "Groove001")
groove2.Profile = sketch3
groove2.ReferenceAxis = (sketch3, ["V_Axis"])
groove2.setExpression("Angle", "Params.groove2_angle")

doc.recompute()
